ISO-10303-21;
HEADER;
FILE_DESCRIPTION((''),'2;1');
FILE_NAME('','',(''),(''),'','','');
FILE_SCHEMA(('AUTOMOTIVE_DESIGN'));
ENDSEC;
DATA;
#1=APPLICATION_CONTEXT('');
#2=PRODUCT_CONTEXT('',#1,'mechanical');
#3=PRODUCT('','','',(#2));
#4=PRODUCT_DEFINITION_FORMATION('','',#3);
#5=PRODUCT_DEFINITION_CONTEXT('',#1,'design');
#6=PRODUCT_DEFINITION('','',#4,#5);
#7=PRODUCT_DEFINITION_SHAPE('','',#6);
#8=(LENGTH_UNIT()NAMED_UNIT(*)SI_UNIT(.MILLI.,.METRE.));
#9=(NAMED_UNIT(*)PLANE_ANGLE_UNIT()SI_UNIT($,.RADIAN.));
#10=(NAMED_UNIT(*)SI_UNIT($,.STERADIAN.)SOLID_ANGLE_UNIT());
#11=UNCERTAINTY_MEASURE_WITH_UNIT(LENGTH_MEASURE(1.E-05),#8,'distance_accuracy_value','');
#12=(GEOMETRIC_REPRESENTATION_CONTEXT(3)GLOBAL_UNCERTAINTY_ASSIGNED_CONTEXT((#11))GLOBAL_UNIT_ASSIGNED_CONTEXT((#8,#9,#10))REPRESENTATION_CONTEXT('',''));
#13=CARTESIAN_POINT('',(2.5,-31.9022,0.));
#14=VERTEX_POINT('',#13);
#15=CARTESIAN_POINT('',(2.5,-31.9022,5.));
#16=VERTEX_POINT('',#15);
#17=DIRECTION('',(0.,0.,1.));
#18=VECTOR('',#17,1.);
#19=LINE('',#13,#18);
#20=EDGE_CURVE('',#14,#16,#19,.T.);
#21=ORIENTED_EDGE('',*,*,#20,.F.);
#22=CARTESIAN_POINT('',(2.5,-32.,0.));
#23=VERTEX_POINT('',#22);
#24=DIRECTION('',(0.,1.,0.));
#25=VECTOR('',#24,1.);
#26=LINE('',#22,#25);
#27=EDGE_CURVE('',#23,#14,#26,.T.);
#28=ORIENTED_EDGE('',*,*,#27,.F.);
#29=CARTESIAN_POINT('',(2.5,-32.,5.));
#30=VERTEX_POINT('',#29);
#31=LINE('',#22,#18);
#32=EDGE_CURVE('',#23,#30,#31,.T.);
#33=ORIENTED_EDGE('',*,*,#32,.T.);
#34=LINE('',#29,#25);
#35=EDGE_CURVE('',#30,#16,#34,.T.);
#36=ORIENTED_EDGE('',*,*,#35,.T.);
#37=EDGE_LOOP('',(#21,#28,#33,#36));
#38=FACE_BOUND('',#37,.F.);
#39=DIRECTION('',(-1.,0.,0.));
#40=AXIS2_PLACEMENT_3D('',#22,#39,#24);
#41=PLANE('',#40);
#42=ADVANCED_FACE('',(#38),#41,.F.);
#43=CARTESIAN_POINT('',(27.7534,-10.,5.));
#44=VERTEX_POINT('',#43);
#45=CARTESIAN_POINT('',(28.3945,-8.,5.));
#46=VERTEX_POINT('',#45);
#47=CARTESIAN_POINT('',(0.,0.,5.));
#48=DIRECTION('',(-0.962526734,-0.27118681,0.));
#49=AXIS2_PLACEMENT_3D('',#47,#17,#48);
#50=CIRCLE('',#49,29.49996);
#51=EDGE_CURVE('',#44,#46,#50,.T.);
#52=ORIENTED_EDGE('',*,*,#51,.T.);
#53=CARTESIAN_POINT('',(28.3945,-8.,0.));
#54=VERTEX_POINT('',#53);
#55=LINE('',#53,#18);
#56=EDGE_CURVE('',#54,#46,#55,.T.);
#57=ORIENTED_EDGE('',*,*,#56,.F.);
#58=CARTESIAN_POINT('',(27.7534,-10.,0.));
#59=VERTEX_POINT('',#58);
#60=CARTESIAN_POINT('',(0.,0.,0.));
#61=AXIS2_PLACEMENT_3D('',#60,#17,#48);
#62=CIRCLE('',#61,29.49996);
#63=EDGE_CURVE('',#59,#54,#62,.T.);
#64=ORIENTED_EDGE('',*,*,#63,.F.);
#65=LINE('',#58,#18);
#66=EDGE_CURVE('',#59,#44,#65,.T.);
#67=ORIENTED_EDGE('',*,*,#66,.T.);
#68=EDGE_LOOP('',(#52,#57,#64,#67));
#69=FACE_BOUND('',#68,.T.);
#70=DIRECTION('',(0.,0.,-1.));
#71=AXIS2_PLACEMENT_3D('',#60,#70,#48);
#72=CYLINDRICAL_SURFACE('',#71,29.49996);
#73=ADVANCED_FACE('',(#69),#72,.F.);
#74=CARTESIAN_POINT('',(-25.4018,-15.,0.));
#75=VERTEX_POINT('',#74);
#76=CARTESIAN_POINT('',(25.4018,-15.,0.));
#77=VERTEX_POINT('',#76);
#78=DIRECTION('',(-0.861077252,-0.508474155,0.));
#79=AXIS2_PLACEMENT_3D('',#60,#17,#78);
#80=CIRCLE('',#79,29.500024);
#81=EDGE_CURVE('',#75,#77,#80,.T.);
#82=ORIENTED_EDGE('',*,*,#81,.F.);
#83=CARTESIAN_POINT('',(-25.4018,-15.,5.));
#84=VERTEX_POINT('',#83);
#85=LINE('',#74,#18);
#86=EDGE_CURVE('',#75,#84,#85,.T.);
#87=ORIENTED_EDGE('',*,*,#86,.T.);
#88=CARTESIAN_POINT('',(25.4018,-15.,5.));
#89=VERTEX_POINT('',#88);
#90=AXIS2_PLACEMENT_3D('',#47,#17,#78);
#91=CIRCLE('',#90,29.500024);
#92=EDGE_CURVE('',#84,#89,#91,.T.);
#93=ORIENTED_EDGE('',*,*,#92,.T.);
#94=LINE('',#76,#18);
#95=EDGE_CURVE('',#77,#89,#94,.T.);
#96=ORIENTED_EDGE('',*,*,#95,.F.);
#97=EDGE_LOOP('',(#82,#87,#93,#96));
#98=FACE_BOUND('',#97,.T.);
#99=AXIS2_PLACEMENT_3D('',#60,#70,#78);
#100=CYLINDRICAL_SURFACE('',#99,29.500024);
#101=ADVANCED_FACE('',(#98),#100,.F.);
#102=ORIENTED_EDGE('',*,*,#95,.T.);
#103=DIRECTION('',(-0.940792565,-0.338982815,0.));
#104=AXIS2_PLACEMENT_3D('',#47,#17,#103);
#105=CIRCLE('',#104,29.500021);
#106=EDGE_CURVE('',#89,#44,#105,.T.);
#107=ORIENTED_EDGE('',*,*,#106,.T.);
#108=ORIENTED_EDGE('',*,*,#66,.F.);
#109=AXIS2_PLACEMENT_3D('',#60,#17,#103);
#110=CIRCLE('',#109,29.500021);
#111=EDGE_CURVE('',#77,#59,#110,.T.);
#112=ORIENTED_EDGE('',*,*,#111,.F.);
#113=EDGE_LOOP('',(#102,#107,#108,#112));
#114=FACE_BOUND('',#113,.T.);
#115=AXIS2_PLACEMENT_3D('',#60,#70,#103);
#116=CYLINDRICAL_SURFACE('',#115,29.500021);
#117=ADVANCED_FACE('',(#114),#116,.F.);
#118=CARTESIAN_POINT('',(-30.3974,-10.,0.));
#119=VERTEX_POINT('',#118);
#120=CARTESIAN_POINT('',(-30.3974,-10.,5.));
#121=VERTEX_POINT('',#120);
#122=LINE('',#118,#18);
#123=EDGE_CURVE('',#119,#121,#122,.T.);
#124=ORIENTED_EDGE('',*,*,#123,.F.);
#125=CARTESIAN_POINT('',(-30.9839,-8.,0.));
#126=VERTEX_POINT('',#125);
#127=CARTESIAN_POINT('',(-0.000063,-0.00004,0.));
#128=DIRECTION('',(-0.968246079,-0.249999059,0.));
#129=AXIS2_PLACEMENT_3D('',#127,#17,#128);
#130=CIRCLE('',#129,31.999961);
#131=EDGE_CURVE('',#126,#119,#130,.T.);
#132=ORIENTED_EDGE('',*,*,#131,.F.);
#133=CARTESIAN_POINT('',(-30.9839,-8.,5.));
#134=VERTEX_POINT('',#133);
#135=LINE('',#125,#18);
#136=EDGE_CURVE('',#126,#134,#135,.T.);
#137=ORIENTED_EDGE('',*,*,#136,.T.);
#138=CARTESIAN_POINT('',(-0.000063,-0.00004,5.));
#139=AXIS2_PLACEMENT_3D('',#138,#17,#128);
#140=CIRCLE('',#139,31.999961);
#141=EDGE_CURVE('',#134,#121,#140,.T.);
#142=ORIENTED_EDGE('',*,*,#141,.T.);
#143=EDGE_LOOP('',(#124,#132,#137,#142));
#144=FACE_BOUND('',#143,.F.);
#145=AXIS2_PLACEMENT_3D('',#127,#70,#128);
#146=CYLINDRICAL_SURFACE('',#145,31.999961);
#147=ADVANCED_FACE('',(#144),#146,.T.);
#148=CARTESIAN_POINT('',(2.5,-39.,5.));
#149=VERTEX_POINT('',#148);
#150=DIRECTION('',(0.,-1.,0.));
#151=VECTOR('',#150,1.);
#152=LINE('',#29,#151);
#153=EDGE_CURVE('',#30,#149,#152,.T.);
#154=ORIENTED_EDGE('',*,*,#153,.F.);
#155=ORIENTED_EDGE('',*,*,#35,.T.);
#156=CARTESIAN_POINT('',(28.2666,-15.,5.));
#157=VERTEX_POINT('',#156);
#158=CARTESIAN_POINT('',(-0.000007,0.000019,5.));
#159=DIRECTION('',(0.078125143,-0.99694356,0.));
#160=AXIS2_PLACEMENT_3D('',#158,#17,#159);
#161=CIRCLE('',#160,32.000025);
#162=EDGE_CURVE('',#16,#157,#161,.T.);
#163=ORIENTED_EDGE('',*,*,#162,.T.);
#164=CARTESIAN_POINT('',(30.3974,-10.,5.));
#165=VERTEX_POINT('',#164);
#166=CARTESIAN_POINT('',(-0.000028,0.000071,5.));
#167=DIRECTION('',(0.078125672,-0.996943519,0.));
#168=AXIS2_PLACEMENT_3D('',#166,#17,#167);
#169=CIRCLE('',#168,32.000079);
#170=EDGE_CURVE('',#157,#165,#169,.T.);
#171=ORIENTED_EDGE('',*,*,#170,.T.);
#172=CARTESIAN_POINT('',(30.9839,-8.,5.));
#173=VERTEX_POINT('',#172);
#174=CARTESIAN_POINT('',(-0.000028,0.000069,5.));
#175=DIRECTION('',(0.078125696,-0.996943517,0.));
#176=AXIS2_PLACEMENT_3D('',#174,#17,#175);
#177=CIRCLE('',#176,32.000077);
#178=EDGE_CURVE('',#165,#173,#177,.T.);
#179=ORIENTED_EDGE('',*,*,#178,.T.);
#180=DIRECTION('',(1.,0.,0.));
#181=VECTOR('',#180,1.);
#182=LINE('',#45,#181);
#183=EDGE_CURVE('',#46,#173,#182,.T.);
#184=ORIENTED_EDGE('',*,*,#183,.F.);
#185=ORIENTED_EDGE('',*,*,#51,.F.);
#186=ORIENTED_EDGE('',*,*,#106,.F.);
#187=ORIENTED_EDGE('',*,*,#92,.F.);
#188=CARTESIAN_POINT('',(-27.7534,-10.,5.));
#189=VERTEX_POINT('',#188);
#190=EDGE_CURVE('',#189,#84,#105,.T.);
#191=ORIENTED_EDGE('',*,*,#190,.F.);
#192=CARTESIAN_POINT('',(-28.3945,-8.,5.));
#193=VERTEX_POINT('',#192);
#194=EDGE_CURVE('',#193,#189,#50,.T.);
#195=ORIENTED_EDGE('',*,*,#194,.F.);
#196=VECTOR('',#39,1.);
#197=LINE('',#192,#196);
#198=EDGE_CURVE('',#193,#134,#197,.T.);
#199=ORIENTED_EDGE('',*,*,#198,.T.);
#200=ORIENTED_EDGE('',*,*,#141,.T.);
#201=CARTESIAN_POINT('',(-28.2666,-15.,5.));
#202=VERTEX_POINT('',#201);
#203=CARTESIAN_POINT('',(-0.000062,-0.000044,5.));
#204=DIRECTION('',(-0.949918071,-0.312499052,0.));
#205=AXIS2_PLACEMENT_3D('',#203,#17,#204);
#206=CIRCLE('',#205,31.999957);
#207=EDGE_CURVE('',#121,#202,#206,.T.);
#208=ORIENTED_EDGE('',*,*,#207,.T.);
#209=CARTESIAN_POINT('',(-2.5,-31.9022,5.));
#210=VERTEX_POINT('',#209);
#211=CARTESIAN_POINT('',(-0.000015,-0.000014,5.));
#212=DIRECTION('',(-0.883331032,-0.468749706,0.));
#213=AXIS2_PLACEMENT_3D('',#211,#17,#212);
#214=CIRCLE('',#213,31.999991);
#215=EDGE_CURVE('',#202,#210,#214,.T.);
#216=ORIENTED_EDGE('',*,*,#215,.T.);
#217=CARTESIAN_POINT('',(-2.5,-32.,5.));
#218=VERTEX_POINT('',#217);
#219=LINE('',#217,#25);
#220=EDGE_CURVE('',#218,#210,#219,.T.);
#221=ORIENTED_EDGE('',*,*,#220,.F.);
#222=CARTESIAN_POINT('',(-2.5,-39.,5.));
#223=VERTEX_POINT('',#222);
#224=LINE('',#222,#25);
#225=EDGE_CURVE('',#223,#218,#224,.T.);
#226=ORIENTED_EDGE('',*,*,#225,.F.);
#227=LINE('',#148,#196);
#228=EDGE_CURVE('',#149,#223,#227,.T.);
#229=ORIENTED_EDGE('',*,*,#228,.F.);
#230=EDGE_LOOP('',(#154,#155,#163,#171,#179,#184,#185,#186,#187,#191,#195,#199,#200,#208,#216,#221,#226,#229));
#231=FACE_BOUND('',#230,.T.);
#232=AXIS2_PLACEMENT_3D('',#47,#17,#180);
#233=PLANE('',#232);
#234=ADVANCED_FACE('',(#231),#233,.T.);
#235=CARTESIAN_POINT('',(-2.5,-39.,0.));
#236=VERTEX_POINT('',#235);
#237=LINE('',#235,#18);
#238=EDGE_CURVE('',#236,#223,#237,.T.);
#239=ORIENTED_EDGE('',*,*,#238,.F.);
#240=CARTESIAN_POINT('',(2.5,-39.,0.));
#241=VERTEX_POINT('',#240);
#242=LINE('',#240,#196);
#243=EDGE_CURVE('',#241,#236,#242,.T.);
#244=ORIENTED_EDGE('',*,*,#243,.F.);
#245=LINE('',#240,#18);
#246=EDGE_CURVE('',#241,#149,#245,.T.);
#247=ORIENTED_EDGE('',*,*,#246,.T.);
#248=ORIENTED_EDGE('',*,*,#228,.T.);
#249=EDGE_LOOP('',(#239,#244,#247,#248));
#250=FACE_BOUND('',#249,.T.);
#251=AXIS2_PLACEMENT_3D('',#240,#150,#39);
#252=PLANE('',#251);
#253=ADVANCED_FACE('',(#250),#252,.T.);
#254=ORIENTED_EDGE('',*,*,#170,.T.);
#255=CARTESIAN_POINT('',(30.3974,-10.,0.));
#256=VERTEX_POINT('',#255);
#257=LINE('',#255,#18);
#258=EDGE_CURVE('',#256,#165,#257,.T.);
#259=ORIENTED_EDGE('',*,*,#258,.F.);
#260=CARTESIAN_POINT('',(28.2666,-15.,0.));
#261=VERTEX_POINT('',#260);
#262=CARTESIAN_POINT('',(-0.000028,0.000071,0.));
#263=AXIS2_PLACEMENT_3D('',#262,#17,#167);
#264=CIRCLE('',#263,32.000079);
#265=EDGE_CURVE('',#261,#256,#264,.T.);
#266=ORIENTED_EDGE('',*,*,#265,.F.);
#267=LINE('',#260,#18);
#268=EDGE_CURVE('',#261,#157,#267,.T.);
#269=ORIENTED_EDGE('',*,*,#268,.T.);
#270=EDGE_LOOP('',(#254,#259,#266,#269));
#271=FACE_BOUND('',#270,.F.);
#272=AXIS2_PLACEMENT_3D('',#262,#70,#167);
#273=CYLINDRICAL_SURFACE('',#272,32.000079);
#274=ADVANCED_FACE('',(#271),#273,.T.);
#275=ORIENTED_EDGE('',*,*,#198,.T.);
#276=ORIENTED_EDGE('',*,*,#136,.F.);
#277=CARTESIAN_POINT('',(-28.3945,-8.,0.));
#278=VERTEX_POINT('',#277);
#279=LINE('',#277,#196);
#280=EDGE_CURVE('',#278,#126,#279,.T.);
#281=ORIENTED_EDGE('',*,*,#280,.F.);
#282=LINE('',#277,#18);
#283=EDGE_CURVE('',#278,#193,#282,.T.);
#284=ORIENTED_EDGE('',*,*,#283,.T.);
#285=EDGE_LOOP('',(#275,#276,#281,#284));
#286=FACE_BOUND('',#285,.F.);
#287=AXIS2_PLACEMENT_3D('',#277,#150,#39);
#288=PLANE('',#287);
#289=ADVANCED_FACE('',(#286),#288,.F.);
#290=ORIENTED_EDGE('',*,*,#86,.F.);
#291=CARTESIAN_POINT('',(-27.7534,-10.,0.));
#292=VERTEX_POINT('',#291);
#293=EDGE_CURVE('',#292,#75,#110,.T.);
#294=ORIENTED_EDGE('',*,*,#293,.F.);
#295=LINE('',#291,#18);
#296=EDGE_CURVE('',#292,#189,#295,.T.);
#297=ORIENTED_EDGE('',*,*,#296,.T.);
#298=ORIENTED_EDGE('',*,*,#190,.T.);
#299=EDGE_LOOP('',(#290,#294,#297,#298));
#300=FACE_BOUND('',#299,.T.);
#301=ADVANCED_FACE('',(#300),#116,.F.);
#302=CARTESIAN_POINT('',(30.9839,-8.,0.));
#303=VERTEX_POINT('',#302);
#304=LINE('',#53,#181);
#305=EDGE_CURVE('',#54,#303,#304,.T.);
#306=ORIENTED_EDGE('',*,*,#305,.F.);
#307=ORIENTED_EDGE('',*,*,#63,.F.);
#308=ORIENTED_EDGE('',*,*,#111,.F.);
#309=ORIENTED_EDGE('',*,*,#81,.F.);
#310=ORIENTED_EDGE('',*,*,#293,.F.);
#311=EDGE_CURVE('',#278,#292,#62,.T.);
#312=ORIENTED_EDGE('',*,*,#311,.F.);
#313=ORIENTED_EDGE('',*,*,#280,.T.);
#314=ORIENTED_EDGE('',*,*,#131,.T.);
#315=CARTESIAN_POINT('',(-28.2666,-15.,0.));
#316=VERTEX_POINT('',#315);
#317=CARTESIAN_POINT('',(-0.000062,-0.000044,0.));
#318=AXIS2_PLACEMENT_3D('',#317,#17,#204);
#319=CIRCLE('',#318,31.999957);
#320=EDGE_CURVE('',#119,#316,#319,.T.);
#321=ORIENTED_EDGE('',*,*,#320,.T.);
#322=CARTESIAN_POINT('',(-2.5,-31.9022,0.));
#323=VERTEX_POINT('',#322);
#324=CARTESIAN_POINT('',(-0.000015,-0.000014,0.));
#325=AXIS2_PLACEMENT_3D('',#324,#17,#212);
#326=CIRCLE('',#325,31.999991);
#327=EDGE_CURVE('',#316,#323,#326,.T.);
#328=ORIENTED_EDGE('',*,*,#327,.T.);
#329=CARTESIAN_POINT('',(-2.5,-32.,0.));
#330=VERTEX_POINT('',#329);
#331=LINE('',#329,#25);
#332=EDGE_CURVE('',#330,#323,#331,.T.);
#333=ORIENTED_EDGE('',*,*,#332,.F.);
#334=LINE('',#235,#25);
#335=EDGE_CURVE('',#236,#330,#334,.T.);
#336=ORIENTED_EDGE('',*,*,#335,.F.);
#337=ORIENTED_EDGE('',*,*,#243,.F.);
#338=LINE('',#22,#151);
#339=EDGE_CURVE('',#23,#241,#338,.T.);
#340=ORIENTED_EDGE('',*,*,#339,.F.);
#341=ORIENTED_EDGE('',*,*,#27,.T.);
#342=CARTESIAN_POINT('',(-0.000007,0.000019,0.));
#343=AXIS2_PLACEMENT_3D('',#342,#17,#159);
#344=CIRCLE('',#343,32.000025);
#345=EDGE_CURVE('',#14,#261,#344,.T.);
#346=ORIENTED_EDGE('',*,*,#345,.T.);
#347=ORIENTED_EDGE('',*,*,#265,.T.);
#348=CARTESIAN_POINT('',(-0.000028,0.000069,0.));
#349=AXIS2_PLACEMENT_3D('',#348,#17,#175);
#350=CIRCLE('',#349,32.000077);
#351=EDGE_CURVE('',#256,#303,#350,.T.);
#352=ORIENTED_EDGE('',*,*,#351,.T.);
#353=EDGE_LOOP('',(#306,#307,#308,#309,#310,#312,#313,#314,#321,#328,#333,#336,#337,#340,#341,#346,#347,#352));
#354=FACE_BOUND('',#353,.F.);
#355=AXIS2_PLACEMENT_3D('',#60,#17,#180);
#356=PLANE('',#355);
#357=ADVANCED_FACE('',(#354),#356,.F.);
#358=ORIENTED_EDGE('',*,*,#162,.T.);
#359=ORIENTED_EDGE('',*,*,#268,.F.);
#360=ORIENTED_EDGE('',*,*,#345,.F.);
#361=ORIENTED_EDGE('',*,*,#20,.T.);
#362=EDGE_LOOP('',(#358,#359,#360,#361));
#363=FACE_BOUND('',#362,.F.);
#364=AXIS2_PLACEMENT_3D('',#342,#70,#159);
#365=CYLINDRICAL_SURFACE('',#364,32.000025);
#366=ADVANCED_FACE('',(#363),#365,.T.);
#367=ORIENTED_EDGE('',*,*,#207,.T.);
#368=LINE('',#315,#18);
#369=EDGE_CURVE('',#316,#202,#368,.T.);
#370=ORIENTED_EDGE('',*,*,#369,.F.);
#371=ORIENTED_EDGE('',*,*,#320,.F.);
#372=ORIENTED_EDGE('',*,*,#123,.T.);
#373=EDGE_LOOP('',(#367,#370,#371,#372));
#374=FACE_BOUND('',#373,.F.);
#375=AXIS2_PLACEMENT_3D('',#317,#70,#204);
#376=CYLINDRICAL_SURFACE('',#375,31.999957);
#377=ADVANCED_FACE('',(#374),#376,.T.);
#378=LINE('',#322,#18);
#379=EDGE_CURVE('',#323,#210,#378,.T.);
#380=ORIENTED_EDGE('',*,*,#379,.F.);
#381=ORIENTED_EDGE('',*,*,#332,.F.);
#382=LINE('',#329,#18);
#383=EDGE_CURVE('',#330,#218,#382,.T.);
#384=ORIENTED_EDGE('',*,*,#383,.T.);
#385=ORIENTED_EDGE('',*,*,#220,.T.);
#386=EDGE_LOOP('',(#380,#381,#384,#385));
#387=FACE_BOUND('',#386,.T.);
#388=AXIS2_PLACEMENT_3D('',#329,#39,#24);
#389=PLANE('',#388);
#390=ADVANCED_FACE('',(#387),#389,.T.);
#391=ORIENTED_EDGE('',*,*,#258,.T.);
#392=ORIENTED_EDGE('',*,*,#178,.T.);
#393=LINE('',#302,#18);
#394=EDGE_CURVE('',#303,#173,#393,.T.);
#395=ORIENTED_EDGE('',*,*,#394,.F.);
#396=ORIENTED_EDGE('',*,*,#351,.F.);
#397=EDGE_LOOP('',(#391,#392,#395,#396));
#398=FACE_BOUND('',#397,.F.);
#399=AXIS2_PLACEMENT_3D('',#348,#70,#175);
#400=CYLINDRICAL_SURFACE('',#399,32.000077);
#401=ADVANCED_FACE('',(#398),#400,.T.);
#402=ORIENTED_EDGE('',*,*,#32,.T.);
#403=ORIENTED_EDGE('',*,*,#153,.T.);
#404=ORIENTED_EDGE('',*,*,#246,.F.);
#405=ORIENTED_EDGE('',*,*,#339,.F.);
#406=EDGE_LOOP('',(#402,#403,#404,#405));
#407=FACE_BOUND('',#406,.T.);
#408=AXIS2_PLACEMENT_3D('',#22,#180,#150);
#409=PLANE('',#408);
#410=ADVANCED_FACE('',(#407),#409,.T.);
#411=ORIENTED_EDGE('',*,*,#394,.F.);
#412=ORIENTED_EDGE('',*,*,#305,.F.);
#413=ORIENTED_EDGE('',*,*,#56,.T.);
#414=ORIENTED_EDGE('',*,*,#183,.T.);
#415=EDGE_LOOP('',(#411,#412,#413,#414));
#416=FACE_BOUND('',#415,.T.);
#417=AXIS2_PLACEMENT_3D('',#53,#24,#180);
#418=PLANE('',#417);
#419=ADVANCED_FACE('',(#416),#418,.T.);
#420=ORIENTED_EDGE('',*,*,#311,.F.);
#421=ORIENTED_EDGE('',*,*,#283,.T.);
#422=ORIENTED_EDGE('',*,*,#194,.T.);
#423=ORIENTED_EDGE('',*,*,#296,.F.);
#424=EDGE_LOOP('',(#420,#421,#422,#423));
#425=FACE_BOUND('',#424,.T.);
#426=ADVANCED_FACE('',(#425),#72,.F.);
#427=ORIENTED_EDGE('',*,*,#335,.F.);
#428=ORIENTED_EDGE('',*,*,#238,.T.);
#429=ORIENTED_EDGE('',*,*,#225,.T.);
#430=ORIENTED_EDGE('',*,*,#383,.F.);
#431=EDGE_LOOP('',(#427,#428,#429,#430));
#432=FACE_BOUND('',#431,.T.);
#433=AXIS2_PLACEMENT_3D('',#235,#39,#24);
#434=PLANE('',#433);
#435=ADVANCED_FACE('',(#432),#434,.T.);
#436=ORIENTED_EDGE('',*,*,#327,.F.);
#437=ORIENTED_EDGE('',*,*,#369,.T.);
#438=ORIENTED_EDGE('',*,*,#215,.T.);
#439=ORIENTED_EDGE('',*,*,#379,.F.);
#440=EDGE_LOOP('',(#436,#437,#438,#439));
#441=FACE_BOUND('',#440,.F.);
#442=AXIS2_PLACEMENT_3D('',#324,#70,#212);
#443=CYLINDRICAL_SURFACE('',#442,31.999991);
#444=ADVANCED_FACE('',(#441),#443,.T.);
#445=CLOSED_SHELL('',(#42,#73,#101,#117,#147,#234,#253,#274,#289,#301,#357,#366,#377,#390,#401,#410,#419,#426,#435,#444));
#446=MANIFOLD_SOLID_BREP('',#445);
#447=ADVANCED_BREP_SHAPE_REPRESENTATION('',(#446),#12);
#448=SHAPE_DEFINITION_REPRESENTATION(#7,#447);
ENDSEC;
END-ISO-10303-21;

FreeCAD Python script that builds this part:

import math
import FreeCAD as App
import Part
import Sketcher
from FreeCAD import Vector
Q = App.Units.Quantity

doc = App.newDocument("Part")
body = doc.addObject("PartDesign::Body", "Body")

# Sketch on XY plane
sketch1 = body.newObject("Sketcher::SketchObject", "Sketch")
sketch1.AttachmentSupport = (doc.getObject("XY_Plane"), [""])
sketch1.MapMode = "FlatFace"
sketch1.addGeometry(Part.ArcOfCircle(Part.Circle(Vector(0, 0, 0), Vector(0, 0, 1), 29.49996), math.radians(-164.265099), math.radians(-15.734901)), False)
sketch1.addGeometry(Part.LineSegment(Vector(-28.3945, -8, 0), Vector(-30.9839, -8, 0)), False)
sketch1.addGeometry(Part.ArcOfCircle(Part.Circle(Vector(0, 0, 0), Vector(0, 0, 1), 32.000006), math.radians(-165.522503), math.radians(-161.790061)), False)
sketch1.addGeometry(Part.ArcOfCircle(Part.Circle(Vector(0, 0, 0), Vector(0, 0, 1), 32.000006), math.radians(-161.790061), math.radians(-152.046823)), False)
sketch1.addGeometry(Part.ArcOfCircle(Part.Circle(Vector(0, 0, 0), Vector(0, 0, 1), 32.000006), math.radians(-152.046823), math.radians(-94.480798)), False)
sketch1.addGeometry(Part.LineSegment(Vector(-2.5, -31.9022, 0), Vector(-2.5, -39, 0)), False)
sketch1.addGeometry(Part.LineSegment(Vector(-2.5, -39, 0), Vector(2.5, -39, 0)), False)
sketch1.addGeometry(Part.LineSegment(Vector(2.5, -39, 0), Vector(2.5, -31.9022, 0)), False)
sketch1.addGeometry(Part.ArcOfCircle(Part.Circle(Vector(0, 0, 0), Vector(0, 0, 1), 32.00003), math.radians(-85.519202), math.radians(-27.953177)), False)
sketch1.addGeometry(Part.ArcOfCircle(Part.Circle(Vector(0, 0, 0), Vector(0, 0, 1), 32.000032), math.radians(-27.953177), math.radians(-18.209939)), False)
sketch1.addGeometry(Part.ArcOfCircle(Part.Circle(Vector(0, 0, 0), Vector(0, 0, 1), 32.000032), math.radians(-18.209939), math.radians(-14.477497)), False)
sketch1.addGeometry(Part.LineSegment(Vector(30.9839, -8, 0), Vector(28.3945, -8, 0)), False)
sketch1.addConstraint(Sketcher.Constraint("Coincident", 0, 1, 1, 1))
sketch1.addConstraint(Sketcher.Constraint("Coincident", 1, 2, 2, 1))
sketch1.addConstraint(Sketcher.Constraint("Tangent", 2, 2, 3, 1))
sketch1.addConstraint(Sketcher.Constraint("Tangent", 3, 2, 4, 1))
sketch1.addConstraint(Sketcher.Constraint("Coincident", 4, 2, 5, 1))
sketch1.addConstraint(Sketcher.Constraint("Coincident", 5, 2, 6, 1))
sketch1.addConstraint(Sketcher.Constraint("Coincident", 6, 2, 7, 1))
sketch1.addConstraint(Sketcher.Constraint("Coincident", 7, 2, 8, 1))
sketch1.addConstraint(Sketcher.Constraint("Tangent", 8, 2, 9, 1))
sketch1.addConstraint(Sketcher.Constraint("Tangent", 9, 2, 10, 1))
sketch1.addConstraint(Sketcher.Constraint("Coincident", 10, 2, 11, 1))
sketch1.addConstraint(Sketcher.Constraint("Coincident", 11, 2, 0, 2))
sketch1.addConstraint(Sketcher.Constraint("Horizontal", 1))
sketch1.addConstraint(Sketcher.Constraint("Vertical", 5))
sketch1.addConstraint(Sketcher.Constraint("Horizontal", 6))
sketch1.addConstraint(Sketcher.Constraint("Vertical", 7))
sketch1.addConstraint(Sketcher.Constraint("Horizontal", 11))
sketch1.addConstraint(Sketcher.Constraint("Coincident", 0, 3, -1, 1))
sketch1.addConstraint(Sketcher.Constraint("Coincident", 2, 3, -1, 1))
sketch1.addConstraint(Sketcher.Constraint("Coincident", 4, 3, -1, 1))
sketch1.addConstraint(Sketcher.Constraint("Coincident", 8, 3, -1, 1))
sketch1.addConstraint(Sketcher.Constraint("Coincident", 10, 3, -1, 1))
sketch1.addConstraint(Sketcher.Constraint("Equal", 4, 8))
sketch1.addConstraint(Sketcher.Constraint("Horizontal", 4, 2, 7, 2))
sketch1.addConstraint(Sketcher.Constraint("Horizontal", 3, 2, 8, 2))
sketch1.addConstraint(Sketcher.Constraint("Horizontal", 2, 2, 9, 2))
sketch1.addConstraint(Sketcher.Constraint("Horizontal", 1, 2, 10, 2))
sketch1.addConstraint(Sketcher.Constraint("DistanceX", 6, 1, 6, 2, Q("5 mm")))
sketch1.addConstraint(Sketcher.Constraint("Radius", 2, Q("32 mm")))
sketch1.addConstraint(Sketcher.Constraint("DistanceY", 3, 2, 2, 2, Q("5 mm")))
sketch1.addConstraint(Sketcher.Constraint("DistanceY", 3, 2, 0, 1, Q("7 mm")))
sketch1.addConstraint(Sketcher.Constraint("Radius", 0, Q("29.5 mm")))
sketch1.addConstraint(Sketcher.Constraint("DistanceY", 0, 1, -1, 1, Q("8 mm")))
sketch1.addConstraint(Sketcher.Constraint("DistanceY", 5, 2, -1, 1, Q("39 mm")))
pad1 = body.newObject("PartDesign::Pad", "Pad")
pad1.Profile = sketch1
pad1.Length = 5

doc.recompute()
